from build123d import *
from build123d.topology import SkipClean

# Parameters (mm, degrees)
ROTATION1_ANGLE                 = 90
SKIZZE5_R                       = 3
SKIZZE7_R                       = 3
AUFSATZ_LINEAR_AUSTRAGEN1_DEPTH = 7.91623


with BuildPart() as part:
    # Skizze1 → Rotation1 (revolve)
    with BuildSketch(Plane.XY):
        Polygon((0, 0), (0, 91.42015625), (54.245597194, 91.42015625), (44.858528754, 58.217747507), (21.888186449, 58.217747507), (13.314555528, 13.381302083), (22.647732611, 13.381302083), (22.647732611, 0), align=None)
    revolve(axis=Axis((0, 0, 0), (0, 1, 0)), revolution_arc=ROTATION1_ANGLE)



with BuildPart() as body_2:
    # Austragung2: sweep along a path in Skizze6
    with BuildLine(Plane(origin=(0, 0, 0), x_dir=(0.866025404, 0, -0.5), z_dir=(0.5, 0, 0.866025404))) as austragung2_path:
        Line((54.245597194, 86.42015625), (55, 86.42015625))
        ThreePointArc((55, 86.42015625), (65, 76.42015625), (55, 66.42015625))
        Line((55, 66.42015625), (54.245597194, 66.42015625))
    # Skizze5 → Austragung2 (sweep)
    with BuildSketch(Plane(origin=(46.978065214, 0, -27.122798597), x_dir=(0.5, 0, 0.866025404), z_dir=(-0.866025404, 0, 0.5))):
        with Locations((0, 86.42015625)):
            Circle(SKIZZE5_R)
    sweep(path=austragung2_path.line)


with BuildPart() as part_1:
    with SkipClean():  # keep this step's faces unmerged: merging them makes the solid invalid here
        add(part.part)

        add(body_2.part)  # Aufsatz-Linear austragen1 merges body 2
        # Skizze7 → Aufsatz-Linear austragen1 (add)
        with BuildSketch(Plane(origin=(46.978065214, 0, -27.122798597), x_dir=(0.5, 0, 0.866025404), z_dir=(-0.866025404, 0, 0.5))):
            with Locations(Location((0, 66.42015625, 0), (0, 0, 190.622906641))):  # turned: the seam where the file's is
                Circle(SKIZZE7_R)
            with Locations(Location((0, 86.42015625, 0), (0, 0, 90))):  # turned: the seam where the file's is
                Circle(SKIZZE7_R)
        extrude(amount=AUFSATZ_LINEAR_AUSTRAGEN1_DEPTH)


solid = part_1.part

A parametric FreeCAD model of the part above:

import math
import FreeCAD as App
import Part
import Sketcher


def add_polygon(sketch, points):
    """Adds a closed chain of lines whose ends are joined by coincident constraints."""
    first, n = sketch.GeometryCount, len(points)
    for a, b in zip(points, points[1:] + points[:1]):
        sketch.addGeometry(Part.LineSegment(App.Vector(*a, 0), App.Vector(*b, 0)), False)
    for i in range(n):
        sketch.addConstraint(Sketcher.Constraint("Coincident", first + i, 2, first + (i + 1) % n, 1))

doc = App.newDocument("Part")
body = doc.addObject("PartDesign::Body", "Body")

# Sketch on XY plane
sketch1 = doc.addObject("Sketcher::SketchObject", "Sketch")
body.addObject(sketch1)
sketch1.AttachmentSupport = (doc.XY_Plane, [""])
sketch1.MapMode = "FlatFace"
add_polygon(sketch1, [(0, 91), (0, 0), (23, 0), (23, 13), (13, 13), (22, 58), (45, 58), (54, 91)])  # lines 0-7
sketch1.addConstraint([
    Sketcher.Constraint("Vertical", 0),
    Sketcher.Constraint("Horizontal", 1),
    Sketcher.Constraint("Vertical", 2),
    Sketcher.Constraint("Horizontal", 3),
    Sketcher.Constraint("Horizontal", 5),
    Sketcher.Constraint("Horizontal", 7),
    Sketcher.Constraint("Coincident", 0, 2, -1, 1),
    Sketcher.Constraint("Distance", 4, 45.648811),
    Sketcher.Constraint("Distance", 6, 34.503869),
    Sketcher.Constraint("DistanceX", 1, 1, 1, 2, 22.647733),
    Sketcher.Constraint("DistanceX", 3, 2, 3, 1, 9.333177),
    Sketcher.Constraint("DistanceX", 5, 1, 5, 2, 22.970342),
    Sketcher.Constraint("DistanceX", 7, 2, 7, 1, 54.245597),
    Sketcher.Constraint("DistanceY", 0, 2, 0, 1, 91.420156),
    Sketcher.Constraint("DistanceY", 2, 1, 2, 2, 13.381302),
])
revolution = doc.addObject("PartDesign::Revolution", "Revolution")
body.addObject(revolution)
revolution.Profile = sketch1
revolution.ReferenceAxis = (sketch1, ["V_Axis"])
revolution.Angle = 90
body2 = doc.addObject("PartDesign::Body", "Body001")

# Sketch on an angled plane
sketch2 = doc.addObject("Sketcher::SketchObject", "Sketch001")
body2.addObject(sketch2)
sketch2.Placement = App.Placement(App.Vector(46.978065, 0, -27.122799), App.Rotation(App.Vector(0.5, 0, 0.866025404), App.Vector(0, 1, 0), App.Vector(-0.866025404, 0, 0.5), "ZXY"))
sketch2.addGeometry(Part.Circle(App.Vector(0, 86.4, 0), App.Vector(0, 0, 1), 3), False)
sketch2.addConstraint([
    Sketcher.Constraint("PointOnObject", 0, 3, -2),
    Sketcher.Constraint("Diameter", 0, 6.0),
    Sketcher.Constraint("DistanceY", -1, 1, 0, 3, 86.420156),
])

# Sketch on an angled plane
sketch3 = doc.addObject("Sketcher::SketchObject", "Sketch002")
body2.addObject(sketch3)
sketch3.Placement = App.Placement(App.Vector(0, 0, 0), App.Rotation(App.Vector(0.866025404, 0, -0.5), App.Vector(0, 1, 0), App.Vector(0.5, 0, 0.866025404), "ZXY"))
sketch3.addGeometry([
    Part.LineSegment(App.Vector(54.2, 86.4, 0), App.Vector(55, 86.4, 0)),
    Part.ArcOfCircle(Part.Circle(App.Vector(55, 76.4, 0), App.Vector(0, 0, 1), 10), math.radians(-90), math.radians(90)),
    Part.LineSegment(App.Vector(55, 66.4, 0), App.Vector(54.2, 66.4, 0)),
], False)
sketch3.addConstraint([
    Sketcher.Constraint("Tangent", 0, 2, 1, 2),
    Sketcher.Constraint("Tangent", 1, 1, 2, 1),
    Sketcher.Constraint("Horizontal", 0),
    Sketcher.Constraint("Horizontal", 2),
    Sketcher.Constraint("Vertical", 0, 1, 2, 2),
    Sketcher.Constraint("Radius", 1, 10.0),
    Sketcher.Constraint("DistanceX", -1, 1, 1, 3, 55.0),
    Sketcher.Constraint("DistanceX", 0, 1, 0, 2, 0.754403),
    Sketcher.Constraint("DistanceY", -1, 1, 1, 3, 76.420156),
])
doc.recompute()

additivepipe = doc.addObject("PartDesign::AdditivePipe", "AdditivePipe")
body2.addObject(additivepipe)
additivepipe.Profile = sketch2
additivepipe.Spine = (sketch3, ["Edge1", "Edge2", "Edge3"])
body.AllowCompound = True
doc.recompute()

boolean = doc.addObject("PartDesign::Boolean", "Boolean")
body.addObject(boolean)
boolean.Type = "Fuse"
boolean.addObjects([body2])

# Sketch on an angled plane
sketch4 = doc.addObject("Sketcher::SketchObject", "Sketch003")
body.addObject(sketch4)
sketch4.Placement = App.Placement(App.Vector(46.978065, 0, -27.122799), App.Rotation(App.Vector(0.5, 0, 0.866025404), App.Vector(0, 1, 0), App.Vector(-0.866025404, 0, 0.5), "ZXY"))
sketch4.addGeometry([
    Part.Circle(App.Vector(0, 66.4, 0), App.Vector(0, 0, 1), 3),
    Part.Circle(App.Vector(0, 86.4, 0), App.Vector(0, 0, 1), 3),
], False)
sketch4.addConstraint([
    Sketcher.Constraint("Equal", 0, 1),
    Sketcher.Constraint("PointOnObject", 0, 3, -2),
    Sketcher.Constraint("PointOnObject", 1, 3, -2),
    Sketcher.Constraint("Diameter", 0, 6.0),
    Sketcher.Constraint("DistanceY", 0, 3, 1, 3, 20.0),
    Sketcher.Constraint("DistanceY", -1, 1, 0, 3, 66.420156),
])
pad1 = doc.addObject("PartDesign::Pad", "Pad")
body.addObject(pad1)
pad1.Profile = sketch4
pad1.Length = 7.91623

doc.recompute()
